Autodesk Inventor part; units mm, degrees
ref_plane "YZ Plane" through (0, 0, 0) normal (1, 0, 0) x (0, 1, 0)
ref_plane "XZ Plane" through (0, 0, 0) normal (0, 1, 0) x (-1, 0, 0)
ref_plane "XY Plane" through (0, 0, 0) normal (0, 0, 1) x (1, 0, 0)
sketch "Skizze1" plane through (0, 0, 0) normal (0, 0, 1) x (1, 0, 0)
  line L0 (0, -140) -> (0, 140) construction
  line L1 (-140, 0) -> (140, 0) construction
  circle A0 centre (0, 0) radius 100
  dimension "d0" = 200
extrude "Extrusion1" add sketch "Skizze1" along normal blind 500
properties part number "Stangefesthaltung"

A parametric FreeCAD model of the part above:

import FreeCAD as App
import Part
import Sketcher

V = App.Vector

doc = App.newDocument("Part")
params = doc.addObject("Spreadsheet::Sheet", "Params")
for row, (alias, value) in enumerate([
    ("sketch1_diameter", "200 mm"),
    ("pad1_length", "500 mm"),
], start=1):
    params.set(f"A{row}", alias)
    params.set(f"B{row}", "=" + value)
    params.setAlias(f"B{row}", alias)

body = doc.addObject("PartDesign::Body", "Body")

sketch1 = body.newObject("Sketcher::SketchObject", "Sketch")
sketch1.AttachmentSupport = (doc.getObject("XY_Plane"), [""])
sketch1.MapMode = "FlatFace"
sketch1.addGeometry(Part.Circle(V(0, 0, 0), V(0, 0, 1), 100), False)
sketch1.addConstraint(Sketcher.Constraint("Coincident", 0, 3, -1, 1))
sketch1.addConstraint(Sketcher.Constraint("Diameter", 0, 200.0))
sketch1.setExpression("Constraints[1]", "Params.sketch1_diameter")
pad1 = body.newObject("PartDesign::Pad", "Pad")
pad1.Profile = sketch1
pad1.setExpression("Length", "Params.pad1_length")

doc.recompute()
